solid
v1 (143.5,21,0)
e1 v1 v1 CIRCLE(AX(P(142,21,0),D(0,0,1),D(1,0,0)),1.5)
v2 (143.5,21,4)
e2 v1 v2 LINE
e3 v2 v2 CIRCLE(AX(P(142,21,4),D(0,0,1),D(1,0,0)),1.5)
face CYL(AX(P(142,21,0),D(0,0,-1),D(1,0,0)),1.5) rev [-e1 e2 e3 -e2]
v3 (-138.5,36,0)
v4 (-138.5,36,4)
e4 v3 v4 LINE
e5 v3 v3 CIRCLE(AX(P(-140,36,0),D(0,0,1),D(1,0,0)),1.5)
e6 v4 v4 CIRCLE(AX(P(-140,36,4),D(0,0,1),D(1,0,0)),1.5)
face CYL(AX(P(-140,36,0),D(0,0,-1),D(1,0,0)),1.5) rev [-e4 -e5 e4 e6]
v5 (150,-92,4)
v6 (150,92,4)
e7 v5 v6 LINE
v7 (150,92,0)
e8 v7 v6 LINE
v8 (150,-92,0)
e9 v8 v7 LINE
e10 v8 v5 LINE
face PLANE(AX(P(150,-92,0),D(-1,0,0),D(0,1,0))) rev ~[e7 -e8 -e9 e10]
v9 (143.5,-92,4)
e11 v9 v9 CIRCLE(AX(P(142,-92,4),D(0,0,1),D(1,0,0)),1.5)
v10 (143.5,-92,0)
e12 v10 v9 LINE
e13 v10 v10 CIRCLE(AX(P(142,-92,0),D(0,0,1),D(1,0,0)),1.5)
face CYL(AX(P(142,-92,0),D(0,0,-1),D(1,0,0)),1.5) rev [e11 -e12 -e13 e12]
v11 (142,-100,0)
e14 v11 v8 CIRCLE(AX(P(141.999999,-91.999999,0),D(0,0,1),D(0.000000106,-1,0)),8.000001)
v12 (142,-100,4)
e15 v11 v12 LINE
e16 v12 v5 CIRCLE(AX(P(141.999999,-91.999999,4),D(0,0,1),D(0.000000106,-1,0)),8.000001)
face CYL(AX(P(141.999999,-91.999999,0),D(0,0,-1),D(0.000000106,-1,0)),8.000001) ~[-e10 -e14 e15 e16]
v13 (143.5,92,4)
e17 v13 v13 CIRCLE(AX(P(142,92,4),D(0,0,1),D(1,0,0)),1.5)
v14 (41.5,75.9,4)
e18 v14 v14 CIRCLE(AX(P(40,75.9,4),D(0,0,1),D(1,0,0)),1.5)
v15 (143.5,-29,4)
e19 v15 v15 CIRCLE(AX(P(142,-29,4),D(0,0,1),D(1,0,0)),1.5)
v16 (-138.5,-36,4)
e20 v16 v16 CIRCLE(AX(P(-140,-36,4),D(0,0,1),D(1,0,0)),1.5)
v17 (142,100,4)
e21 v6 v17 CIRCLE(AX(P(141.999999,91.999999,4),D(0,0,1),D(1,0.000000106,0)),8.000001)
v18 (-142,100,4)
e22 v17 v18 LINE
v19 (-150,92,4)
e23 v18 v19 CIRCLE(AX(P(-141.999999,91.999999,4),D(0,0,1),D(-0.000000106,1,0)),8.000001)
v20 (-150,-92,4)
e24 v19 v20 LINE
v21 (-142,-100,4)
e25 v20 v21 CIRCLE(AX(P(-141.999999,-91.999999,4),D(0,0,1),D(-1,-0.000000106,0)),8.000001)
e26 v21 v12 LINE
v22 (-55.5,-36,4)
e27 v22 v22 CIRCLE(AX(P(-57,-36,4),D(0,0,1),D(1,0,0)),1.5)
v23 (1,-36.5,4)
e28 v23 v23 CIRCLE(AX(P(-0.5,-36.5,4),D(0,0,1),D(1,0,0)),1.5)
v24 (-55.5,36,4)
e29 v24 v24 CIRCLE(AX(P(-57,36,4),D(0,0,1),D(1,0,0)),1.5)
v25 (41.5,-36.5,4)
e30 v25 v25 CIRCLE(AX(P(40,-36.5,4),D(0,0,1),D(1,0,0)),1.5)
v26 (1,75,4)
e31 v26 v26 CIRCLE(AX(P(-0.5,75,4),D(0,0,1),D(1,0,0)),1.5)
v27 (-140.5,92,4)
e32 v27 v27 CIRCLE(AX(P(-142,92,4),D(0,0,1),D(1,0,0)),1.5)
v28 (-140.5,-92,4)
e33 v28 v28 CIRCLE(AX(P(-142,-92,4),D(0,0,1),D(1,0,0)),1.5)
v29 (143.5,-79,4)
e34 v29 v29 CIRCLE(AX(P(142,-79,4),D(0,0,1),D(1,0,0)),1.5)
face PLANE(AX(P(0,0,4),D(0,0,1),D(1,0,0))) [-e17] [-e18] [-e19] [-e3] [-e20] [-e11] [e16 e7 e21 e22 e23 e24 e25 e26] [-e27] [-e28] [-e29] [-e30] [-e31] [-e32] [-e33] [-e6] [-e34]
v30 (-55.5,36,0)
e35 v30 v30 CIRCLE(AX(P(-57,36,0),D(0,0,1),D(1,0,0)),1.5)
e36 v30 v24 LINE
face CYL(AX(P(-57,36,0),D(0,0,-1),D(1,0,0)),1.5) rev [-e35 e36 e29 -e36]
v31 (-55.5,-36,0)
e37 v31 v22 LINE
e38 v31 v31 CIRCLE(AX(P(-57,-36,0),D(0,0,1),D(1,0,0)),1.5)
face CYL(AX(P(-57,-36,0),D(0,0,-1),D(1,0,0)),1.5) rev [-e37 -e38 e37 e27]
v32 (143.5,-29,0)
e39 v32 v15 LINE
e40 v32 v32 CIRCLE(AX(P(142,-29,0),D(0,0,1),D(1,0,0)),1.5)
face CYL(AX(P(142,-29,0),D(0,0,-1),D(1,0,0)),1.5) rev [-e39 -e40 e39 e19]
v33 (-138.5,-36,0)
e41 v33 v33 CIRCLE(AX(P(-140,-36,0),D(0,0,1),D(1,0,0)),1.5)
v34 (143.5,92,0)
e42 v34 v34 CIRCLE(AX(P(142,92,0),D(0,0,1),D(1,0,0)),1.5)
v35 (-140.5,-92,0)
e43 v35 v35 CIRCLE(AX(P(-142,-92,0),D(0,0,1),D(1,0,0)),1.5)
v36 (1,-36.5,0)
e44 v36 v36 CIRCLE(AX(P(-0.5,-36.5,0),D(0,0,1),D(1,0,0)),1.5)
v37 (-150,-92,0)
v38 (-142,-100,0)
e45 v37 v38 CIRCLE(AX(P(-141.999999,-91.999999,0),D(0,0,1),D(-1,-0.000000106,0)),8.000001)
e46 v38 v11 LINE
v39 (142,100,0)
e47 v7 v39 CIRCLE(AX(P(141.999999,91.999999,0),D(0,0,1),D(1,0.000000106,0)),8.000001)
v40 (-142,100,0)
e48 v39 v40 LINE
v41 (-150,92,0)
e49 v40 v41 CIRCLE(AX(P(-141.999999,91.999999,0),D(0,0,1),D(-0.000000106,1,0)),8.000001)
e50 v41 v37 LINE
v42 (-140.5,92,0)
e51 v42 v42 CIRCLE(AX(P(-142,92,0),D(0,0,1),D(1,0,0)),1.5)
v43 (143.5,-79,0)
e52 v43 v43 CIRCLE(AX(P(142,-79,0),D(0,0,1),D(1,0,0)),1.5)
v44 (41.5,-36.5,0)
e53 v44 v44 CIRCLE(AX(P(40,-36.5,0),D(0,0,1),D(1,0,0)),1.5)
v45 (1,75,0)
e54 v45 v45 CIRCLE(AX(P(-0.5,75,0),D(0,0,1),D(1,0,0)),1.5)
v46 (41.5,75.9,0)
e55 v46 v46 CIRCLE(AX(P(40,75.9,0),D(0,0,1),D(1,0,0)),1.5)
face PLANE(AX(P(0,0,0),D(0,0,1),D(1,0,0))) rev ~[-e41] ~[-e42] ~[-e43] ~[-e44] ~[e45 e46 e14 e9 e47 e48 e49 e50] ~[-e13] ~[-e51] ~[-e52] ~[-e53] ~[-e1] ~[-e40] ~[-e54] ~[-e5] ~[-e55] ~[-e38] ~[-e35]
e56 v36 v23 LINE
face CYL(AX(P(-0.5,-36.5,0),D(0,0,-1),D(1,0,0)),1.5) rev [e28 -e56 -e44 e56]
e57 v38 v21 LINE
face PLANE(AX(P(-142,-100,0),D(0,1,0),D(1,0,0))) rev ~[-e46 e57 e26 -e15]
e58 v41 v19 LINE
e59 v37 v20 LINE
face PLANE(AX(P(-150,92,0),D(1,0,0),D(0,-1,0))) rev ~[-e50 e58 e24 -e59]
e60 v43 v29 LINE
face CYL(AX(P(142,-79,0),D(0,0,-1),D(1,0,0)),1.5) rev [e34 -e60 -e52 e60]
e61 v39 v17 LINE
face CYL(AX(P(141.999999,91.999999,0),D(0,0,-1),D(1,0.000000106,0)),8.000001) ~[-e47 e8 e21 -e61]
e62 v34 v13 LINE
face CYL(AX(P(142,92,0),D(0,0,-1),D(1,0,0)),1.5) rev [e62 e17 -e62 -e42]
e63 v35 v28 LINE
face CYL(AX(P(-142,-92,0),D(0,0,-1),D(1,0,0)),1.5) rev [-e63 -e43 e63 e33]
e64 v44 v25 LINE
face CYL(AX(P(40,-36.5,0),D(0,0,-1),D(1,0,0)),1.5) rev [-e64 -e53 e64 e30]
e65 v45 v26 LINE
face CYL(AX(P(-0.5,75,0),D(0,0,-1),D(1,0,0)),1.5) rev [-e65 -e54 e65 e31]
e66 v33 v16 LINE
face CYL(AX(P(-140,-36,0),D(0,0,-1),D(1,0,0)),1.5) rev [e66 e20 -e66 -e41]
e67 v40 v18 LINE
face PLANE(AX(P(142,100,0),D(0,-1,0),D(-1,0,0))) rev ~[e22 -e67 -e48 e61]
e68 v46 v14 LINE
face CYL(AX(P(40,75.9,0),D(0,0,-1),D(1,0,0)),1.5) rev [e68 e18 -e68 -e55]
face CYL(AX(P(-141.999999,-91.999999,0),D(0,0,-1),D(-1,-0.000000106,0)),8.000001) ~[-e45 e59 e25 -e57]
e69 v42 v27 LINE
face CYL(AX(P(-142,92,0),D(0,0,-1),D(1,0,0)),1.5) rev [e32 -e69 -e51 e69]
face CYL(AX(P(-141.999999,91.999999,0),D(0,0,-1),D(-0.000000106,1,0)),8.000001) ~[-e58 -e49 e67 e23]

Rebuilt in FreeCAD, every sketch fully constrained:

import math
import FreeCAD as App
import Part
import Sketcher

V = App.Vector
Q = App.Units.Quantity

doc = App.newDocument("Part")
body = doc.addObject("PartDesign::Body", "Body")

sketch1 = doc.addObject("Sketcher::SketchObject", "Sketch")
body.addObject(sketch1)
sketch1.AttachmentSupport = (doc.XY_Plane, [""])
sketch1.MapMode = "FlatFace"
sketch1.addGeometry(Part.LineSegment(V(-142, -100, 0), V(142, -100, 0)), False)
sketch1.addGeometry(Part.ArcOfCircle(Part.Circle(V(141.999999, -91.999999, 0), V(0, 0, 1), 8.000001), math.radians(-89.999994), math.radians(-0.000006)), False)
sketch1.addGeometry(Part.LineSegment(V(150, -92, 0), V(150, 92, 0)), False)
sketch1.addGeometry(Part.ArcOfCircle(Part.Circle(V(141.999999, 91.999999, 0), V(0, 0, 1), 8.000001), math.radians(0.000006), math.radians(89.999994)), False)
sketch1.addGeometry(Part.LineSegment(V(142, 100, 0), V(-142, 100, 0)), False)
sketch1.addGeometry(Part.ArcOfCircle(Part.Circle(V(-141.999999, 91.999999, 0), V(0, 0, 1), 8.000001), math.radians(90.000006), math.radians(179.999994)), False)
sketch1.addGeometry(Part.LineSegment(V(-150, 92, 0), V(-150, -92, 0)), False)
sketch1.addGeometry(Part.ArcOfCircle(Part.Circle(V(-141.999999, -91.999999, 0), V(0, 0, 1), 8.000001), math.radians(-179.999994), math.radians(-90.000006)), False)
sketch1.addGeometry(Part.Circle(V(-142, -92, 0), V(0, 0, 1), 1.5), False)
sketch1.addGeometry(Part.Circle(V(-140, -36, 0), V(0, 0, 1), 1.5), False)
sketch1.addGeometry(Part.Circle(V(-57, -36, 0), V(0, 0, 1), 1.5), False)
sketch1.addGeometry(Part.Circle(V(-0.5, -36.5, 0), V(0, 0, 1), 1.5), False)
sketch1.addGeometry(Part.Circle(V(142, -92, 0), V(0, 0, 1), 1.5), False)
sketch1.addGeometry(Part.Circle(V(142, -79, 0), V(0, 0, 1), 1.5), False)
sketch1.addGeometry(Part.Circle(V(40, -36.5, 0), V(0, 0, 1), 1.5), False)
sketch1.addGeometry(Part.Circle(V(142, -29, 0), V(0, 0, 1), 1.5), False)
sketch1.addGeometry(Part.Circle(V(-140, 36, 0), V(0, 0, 1), 1.5), False)
sketch1.addGeometry(Part.Circle(V(-57, 36, 0), V(0, 0, 1), 1.5), False)
sketch1.addGeometry(Part.Circle(V(-142, 92, 0), V(0, 0, 1), 1.5), False)
sketch1.addGeometry(Part.Circle(V(-0.5, 75, 0), V(0, 0, 1), 1.5), False)
sketch1.addGeometry(Part.Circle(V(142, 21, 0), V(0, 0, 1), 1.5), False)
sketch1.addGeometry(Part.Circle(V(40, 75.9, 0), V(0, 0, 1), 1.5), False)
sketch1.addGeometry(Part.Circle(V(142, 92, 0), V(0, 0, 1), 1.5), False)
sketch1.addConstraint(Sketcher.Constraint("Tangent", 0, 2, 1, 1))
sketch1.addConstraint(Sketcher.Constraint("Tangent", 1, 2, 2, 1))
sketch1.addConstraint(Sketcher.Constraint("Tangent", 2, 2, 3, 1))
sketch1.addConstraint(Sketcher.Constraint("Tangent", 3, 2, 4, 1))
sketch1.addConstraint(Sketcher.Constraint("Tangent", 4, 2, 5, 1))
sketch1.addConstraint(Sketcher.Constraint("Tangent", 5, 2, 6, 1))
sketch1.addConstraint(Sketcher.Constraint("Tangent", 6, 2, 7, 1))
sketch1.addConstraint(Sketcher.Constraint("Tangent", 7, 2, 0, 1))
sketch1.addConstraint(Sketcher.Constraint("Horizontal", 0))
sketch1.addConstraint(Sketcher.Constraint("Vertical", 2))
sketch1.addConstraint(Sketcher.Constraint("Horizontal", 4))
sketch1.addConstraint(Sketcher.Constraint("Vertical", 6))
sketch1.addConstraint(Sketcher.Constraint("Coincident", 8, 3, 7, 3))
sketch1.addConstraint(Sketcher.Constraint("Coincident", 12, 3, 1, 3))
sketch1.addConstraint(Sketcher.Constraint("Coincident", 18, 3, 5, 3))
sketch1.addConstraint(Sketcher.Constraint("Coincident", 22, 3, 3, 3))
sketch1.addConstraint(Sketcher.Constraint("Equal", 1, 3))
sketch1.addConstraint(Sketcher.Constraint("Equal", 3, 5))
sketch1.addConstraint(Sketcher.Constraint("Equal", 5, 7))
sketch1.addConstraint(Sketcher.Constraint("Equal", 8, 9))
sketch1.addConstraint(Sketcher.Constraint("Equal", 9, 10))
sketch1.addConstraint(Sketcher.Constraint("Equal", 10, 11))
sketch1.addConstraint(Sketcher.Constraint("Equal", 11, 12))
sketch1.addConstraint(Sketcher.Constraint("Equal", 12, 13))
sketch1.addConstraint(Sketcher.Constraint("Equal", 13, 14))
sketch1.addConstraint(Sketcher.Constraint("Equal", 14, 15))
sketch1.addConstraint(Sketcher.Constraint("Equal", 15, 16))
sketch1.addConstraint(Sketcher.Constraint("Equal", 16, 17))
sketch1.addConstraint(Sketcher.Constraint("Equal", 17, 18))
sketch1.addConstraint(Sketcher.Constraint("Equal", 18, 19))
sketch1.addConstraint(Sketcher.Constraint("Equal", 19, 20))
sketch1.addConstraint(Sketcher.Constraint("Equal", 20, 21))
sketch1.addConstraint(Sketcher.Constraint("Equal", 21, 22))
sketch1.addConstraint(Sketcher.Constraint("Symmetric", 1, 3, 5, 3, -1, 1))
sketch1.addConstraint(Sketcher.Constraint("Symmetric", 9, 3, 16, 3, -1))
sketch1.addConstraint(Sketcher.Constraint("Symmetric", 10, 3, 17, 3, -1))
sketch1.addConstraint(Sketcher.Constraint("Horizontal", 9, 3, 10, 3))
sketch1.addConstraint(Sketcher.Constraint("Horizontal", 11, 3, 14, 3))
sketch1.addConstraint(Sketcher.Constraint("Vertical", 12, 3, 13, 3))
sketch1.addConstraint(Sketcher.Constraint("Vertical", 13, 3, 15, 3))
sketch1.addConstraint(Sketcher.Constraint("Vertical", 11, 3, 19, 3))
sketch1.addConstraint(Sketcher.Constraint("Vertical", 15, 3, 20, 3))
sketch1.addConstraint(Sketcher.Constraint("Vertical", 14, 3, 21, 3))
sketch1.addConstraint(Sketcher.Constraint("Diameter", 8, Q("3 mm")))
sketch1.addConstraint(Sketcher.Constraint("Radius", 1, Q("8.000001 mm")))
sketch1.addConstraint(Sketcher.Constraint("DistanceX", 0, 1, 0, 2, Q("284 mm")))
sketch1.addConstraint(Sketcher.Constraint("DistanceY", 2, 1, 2, 2, Q("184 mm")))
sketch1.addConstraint(Sketcher.Constraint("DistanceX", 9, 3, -1, 1, Q("140 mm")))
sketch1.addConstraint(Sketcher.Constraint("DistanceY", 9, 3, -1, 1, Q("36 mm")))
sketch1.addConstraint(Sketcher.Constraint("DistanceX", 10, 3, -1, 1, Q("57 mm")))
sketch1.addConstraint(Sketcher.Constraint("DistanceY", 13, 3, -1, 1, Q("79 mm")))
sketch1.addConstraint(Sketcher.Constraint("DistanceX", -1, 1, 14, 3, Q("40 mm")))
sketch1.addConstraint(Sketcher.Constraint("DistanceY", 15, 3, -1, 1, Q("29 mm")))
sketch1.addConstraint(Sketcher.Constraint("DistanceY", -1, 1, 19, 3, Q("75 mm")))
sketch1.addConstraint(Sketcher.Constraint("DistanceY", -1, 1, 20, 3, Q("21 mm")))
sketch1.addConstraint(Sketcher.Constraint("DistanceX", 11, 3, -1, 1, Q("0.5 mm")))
sketch1.addConstraint(Sketcher.Constraint("DistanceY", 11, 3, -1, 1, Q("36.5 mm")))
sketch1.addConstraint(Sketcher.Constraint("DistanceY", -1, 1, 21, 3, Q("75.9 mm")))
pad1 = doc.addObject("PartDesign::Pad", "Pad")
body.addObject(pad1)
pad1.Profile = sketch1
pad1.Length = 4

doc.recompute()
